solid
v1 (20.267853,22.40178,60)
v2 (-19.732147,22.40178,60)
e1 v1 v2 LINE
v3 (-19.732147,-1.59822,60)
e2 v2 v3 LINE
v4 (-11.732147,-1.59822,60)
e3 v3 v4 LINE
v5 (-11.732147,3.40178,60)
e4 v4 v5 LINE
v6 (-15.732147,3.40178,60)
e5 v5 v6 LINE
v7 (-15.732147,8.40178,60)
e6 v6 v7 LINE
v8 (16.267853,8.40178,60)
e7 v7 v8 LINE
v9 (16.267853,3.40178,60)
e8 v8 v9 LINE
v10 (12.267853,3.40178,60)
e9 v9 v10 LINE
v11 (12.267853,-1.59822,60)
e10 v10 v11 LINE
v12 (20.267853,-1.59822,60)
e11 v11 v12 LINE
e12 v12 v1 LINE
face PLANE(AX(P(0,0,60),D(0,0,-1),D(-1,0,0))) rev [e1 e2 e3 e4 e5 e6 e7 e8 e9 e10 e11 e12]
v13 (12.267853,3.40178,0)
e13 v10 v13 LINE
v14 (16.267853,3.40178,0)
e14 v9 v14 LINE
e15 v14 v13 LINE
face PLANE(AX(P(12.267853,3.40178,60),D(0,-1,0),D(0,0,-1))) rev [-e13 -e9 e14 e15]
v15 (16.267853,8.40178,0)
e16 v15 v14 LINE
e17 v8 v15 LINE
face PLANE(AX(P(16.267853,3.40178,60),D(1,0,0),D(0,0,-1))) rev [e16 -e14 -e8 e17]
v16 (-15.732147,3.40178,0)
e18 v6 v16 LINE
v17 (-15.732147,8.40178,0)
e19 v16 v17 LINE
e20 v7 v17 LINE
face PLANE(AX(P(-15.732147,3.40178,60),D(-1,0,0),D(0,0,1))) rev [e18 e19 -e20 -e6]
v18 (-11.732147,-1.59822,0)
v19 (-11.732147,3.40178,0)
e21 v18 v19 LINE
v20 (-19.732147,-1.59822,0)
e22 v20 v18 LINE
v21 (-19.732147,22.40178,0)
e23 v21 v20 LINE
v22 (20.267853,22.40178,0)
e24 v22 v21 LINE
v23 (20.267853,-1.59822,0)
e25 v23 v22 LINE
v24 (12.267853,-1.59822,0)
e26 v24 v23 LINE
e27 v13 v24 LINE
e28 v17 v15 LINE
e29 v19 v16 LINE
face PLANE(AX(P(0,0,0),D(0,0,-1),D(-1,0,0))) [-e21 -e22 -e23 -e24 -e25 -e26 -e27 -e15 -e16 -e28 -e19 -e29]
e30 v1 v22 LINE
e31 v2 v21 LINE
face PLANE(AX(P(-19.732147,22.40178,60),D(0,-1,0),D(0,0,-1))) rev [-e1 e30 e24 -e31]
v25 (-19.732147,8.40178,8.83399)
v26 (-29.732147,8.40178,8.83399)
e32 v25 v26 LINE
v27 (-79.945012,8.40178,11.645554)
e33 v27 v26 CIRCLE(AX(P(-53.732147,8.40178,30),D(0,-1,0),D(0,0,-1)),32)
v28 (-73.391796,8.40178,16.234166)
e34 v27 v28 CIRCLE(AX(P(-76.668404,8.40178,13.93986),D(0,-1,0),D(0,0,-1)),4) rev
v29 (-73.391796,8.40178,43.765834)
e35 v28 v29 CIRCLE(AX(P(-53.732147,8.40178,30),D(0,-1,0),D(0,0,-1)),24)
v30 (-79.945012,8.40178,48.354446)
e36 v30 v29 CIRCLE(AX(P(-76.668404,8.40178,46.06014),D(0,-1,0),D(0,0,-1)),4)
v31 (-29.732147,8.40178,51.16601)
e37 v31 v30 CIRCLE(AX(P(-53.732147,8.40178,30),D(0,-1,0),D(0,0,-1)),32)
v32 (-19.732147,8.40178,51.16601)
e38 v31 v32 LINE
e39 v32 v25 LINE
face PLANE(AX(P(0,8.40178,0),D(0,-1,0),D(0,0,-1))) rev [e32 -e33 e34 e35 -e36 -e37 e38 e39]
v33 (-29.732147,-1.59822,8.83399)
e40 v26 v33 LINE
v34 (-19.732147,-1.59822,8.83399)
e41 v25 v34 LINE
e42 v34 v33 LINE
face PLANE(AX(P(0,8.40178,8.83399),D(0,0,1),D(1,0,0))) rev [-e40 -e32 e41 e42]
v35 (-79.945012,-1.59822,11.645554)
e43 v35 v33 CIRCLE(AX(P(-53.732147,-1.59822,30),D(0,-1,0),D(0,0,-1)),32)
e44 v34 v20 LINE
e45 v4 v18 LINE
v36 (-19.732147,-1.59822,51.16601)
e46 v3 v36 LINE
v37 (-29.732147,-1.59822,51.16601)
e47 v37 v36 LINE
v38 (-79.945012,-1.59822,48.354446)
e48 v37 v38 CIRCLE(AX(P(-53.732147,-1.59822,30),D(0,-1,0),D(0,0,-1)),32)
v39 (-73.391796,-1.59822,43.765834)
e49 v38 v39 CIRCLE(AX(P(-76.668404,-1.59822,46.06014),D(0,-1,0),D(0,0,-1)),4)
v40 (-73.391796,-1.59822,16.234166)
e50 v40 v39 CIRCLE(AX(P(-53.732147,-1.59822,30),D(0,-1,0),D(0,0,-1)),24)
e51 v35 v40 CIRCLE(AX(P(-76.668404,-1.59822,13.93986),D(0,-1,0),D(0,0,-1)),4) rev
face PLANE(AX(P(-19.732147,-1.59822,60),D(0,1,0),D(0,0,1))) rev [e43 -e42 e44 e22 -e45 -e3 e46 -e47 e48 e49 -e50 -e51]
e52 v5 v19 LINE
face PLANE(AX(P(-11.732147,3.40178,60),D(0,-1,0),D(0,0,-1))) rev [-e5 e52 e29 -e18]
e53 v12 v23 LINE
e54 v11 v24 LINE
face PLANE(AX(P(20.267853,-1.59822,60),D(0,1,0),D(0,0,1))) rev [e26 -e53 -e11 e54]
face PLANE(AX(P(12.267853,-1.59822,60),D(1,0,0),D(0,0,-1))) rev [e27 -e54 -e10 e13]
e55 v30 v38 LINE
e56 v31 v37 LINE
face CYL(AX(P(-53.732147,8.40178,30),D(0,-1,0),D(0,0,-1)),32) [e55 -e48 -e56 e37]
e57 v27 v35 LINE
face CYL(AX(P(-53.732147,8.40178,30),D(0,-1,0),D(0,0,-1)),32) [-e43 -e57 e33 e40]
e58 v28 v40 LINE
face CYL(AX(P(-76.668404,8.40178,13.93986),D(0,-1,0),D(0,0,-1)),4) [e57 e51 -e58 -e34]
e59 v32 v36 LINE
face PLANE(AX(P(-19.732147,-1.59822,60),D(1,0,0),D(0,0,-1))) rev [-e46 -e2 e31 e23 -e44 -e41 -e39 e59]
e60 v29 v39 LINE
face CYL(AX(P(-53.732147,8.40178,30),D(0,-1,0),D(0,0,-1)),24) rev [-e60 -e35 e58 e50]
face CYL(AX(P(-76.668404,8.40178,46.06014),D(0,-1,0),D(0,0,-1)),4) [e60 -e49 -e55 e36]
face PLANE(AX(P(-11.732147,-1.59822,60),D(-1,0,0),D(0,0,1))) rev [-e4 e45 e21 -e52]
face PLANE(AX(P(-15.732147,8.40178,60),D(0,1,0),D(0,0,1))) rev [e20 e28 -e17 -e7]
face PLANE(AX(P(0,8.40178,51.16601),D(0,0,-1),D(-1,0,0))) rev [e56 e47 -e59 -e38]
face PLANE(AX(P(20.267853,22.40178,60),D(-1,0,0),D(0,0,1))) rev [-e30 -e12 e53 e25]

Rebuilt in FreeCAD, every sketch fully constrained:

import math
import FreeCAD as App
import Part
import Sketcher

V = App.Vector
Q = App.Units.Quantity

doc = App.newDocument("Part")
body = doc.addObject("PartDesign::Body", "Body")

sketch1 = doc.addObject("Sketcher::SketchObject", "Sketch")
body.addObject(sketch1)
sketch1.AttachmentSupport = (doc.XY_Plane, [""])
sketch1.MapMode = "FlatFace"
sketch1.addGeometry(Part.LineSegment(V(-19.7, -1.6, 0), V(-11.7, -1.6, 0)), False)
sketch1.addGeometry(Part.LineSegment(V(-11.7, -1.6, 0), V(-11.7, 3.4, 0)), False)
sketch1.addGeometry(Part.LineSegment(V(-11.7, 3.4, 0), V(-15.7, 3.4, 0)), False)
sketch1.addGeometry(Part.LineSegment(V(-15.7, 3.4, 0), V(-15.7, 8.4, 0)), False)
sketch1.addGeometry(Part.LineSegment(V(-15.7, 8.4, 0), V(16.3, 8.4, 0)), False)
sketch1.addGeometry(Part.LineSegment(V(16.3, 8.4, 0), V(16.3, 3.4, 0)), False)
sketch1.addGeometry(Part.LineSegment(V(16.3, 3.4, 0), V(12.3, 3.4, 0)), False)
sketch1.addGeometry(Part.LineSegment(V(12.3, 3.4, 0), V(12.3, -1.6, 0)), False)
sketch1.addGeometry(Part.LineSegment(V(12.3, -1.6, 0), V(20.3, -1.6, 0)), False)
sketch1.addGeometry(Part.LineSegment(V(20.3, -1.6, 0), V(20.3, 22.4, 0)), False)
sketch1.addGeometry(Part.LineSegment(V(20.3, 22.4, 0), V(-19.7, 22.4, 0)), False)
sketch1.addGeometry(Part.LineSegment(V(-19.7, 22.4, 0), V(-19.7, -1.6, 0)), False)
sketch1.addConstraint(Sketcher.Constraint("Coincident", 0, 2, 1, 1))
sketch1.addConstraint(Sketcher.Constraint("Coincident", 1, 2, 2, 1))
sketch1.addConstraint(Sketcher.Constraint("Coincident", 2, 2, 3, 1))
sketch1.addConstraint(Sketcher.Constraint("Coincident", 3, 2, 4, 1))
sketch1.addConstraint(Sketcher.Constraint("Coincident", 4, 2, 5, 1))
sketch1.addConstraint(Sketcher.Constraint("Coincident", 5, 2, 6, 1))
sketch1.addConstraint(Sketcher.Constraint("Coincident", 6, 2, 7, 1))
sketch1.addConstraint(Sketcher.Constraint("Coincident", 7, 2, 8, 1))
sketch1.addConstraint(Sketcher.Constraint("Coincident", 8, 2, 9, 1))
sketch1.addConstraint(Sketcher.Constraint("Coincident", 9, 2, 10, 1))
sketch1.addConstraint(Sketcher.Constraint("Coincident", 10, 2, 11, 1))
sketch1.addConstraint(Sketcher.Constraint("Coincident", 11, 2, 0, 1))
sketch1.addConstraint(Sketcher.Constraint("Horizontal", 0))
sketch1.addConstraint(Sketcher.Constraint("Vertical", 1))
sketch1.addConstraint(Sketcher.Constraint("Horizontal", 2))
sketch1.addConstraint(Sketcher.Constraint("Vertical", 3))
sketch1.addConstraint(Sketcher.Constraint("Horizontal", 4))
sketch1.addConstraint(Sketcher.Constraint("Vertical", 5))
sketch1.addConstraint(Sketcher.Constraint("Horizontal", 6))
sketch1.addConstraint(Sketcher.Constraint("Vertical", 7))
sketch1.addConstraint(Sketcher.Constraint("Horizontal", 8))
sketch1.addConstraint(Sketcher.Constraint("Vertical", 9))
sketch1.addConstraint(Sketcher.Constraint("Horizontal", 10))
sketch1.addConstraint(Sketcher.Constraint("Vertical", 11))
sketch1.addConstraint(Sketcher.Constraint("Horizontal", 2, 2, 5, 2))
sketch1.addConstraint(Sketcher.Constraint("Horizontal", 0, 2, 7, 2))
sketch1.addConstraint(Sketcher.Constraint("Equal", 2, 6))
sketch1.addConstraint(Sketcher.Constraint("Equal", 0, 8))
sketch1.addConstraint(Sketcher.Constraint("Equal", 1, 3))
sketch1.addConstraint(Sketcher.Constraint("DistanceX", 0, 1, 0, 2, Q("8 mm")))
sketch1.addConstraint(Sketcher.Constraint("DistanceX", 2, 2, 2, 1, Q("4 mm")))
sketch1.addConstraint(Sketcher.Constraint("DistanceX", 4, 1, 4, 2, Q("32 mm")))
sketch1.addConstraint(Sketcher.Constraint("DistanceY", 1, 1, 1, 2, Q("5 mm")))
sketch1.addConstraint(Sketcher.Constraint("DistanceY", 9, 1, 9, 2, Q("24 mm")))
sketch1.addConstraint(Sketcher.Constraint("DistanceY", 0, 2, -1, 1, Q("1.59822 mm")))
sketch1.addConstraint(Sketcher.Constraint("DistanceX", 0, 2, -1, 1, Q("11.732147 mm")))
pad1 = doc.addObject("PartDesign::Pad", "Pad")
body.addObject(pad1)
pad1.Profile = sketch1
pad1.Length = 60

sketch2 = doc.addObject("Sketcher::SketchObject", "Sketch001")
body.addObject(sketch2)
sketch2.AttachmentSupport = (doc.XZ_Plane, [""])
sketch2.MapMode = "FlatFace"
sketch2.AttachmentOffset = App.Placement(V(0, 0, 1.59822), App.Rotation())
sketch2.addGeometry(Part.LineSegment(V(-19.7, 51.2, 0), V(-29.7, 51.2, 0)), False)
sketch2.addGeometry(Part.ArcOfCircle(Part.Circle(V(-53.7, 30, 0), V(0, 0, 1), 32), math.radians(41), math.radians(145)), False)
sketch2.addGeometry(Part.ArcOfCircle(Part.Circle(V(-76.7, 46.1, 0), V(0, 0, 1), 4), math.radians(145), math.radians(325)), False)
sketch2.addGeometry(Part.ArcOfCircle(Part.Circle(V(-53.7, 30, 0), V(0, 0, 1), 24), math.radians(-145), math.radians(145)), False)
sketch2.addGeometry(Part.ArcOfCircle(Part.Circle(V(-76.7, 13.9, 0), V(0, 0, 1), 4), math.radians(35), math.radians(215)), False)
sketch2.addGeometry(Part.ArcOfCircle(Part.Circle(V(-53.7, 30, 0), V(0, 0, 1), 32), math.radians(-145), math.radians(-41)), False)
sketch2.addGeometry(Part.LineSegment(V(-29.7, 8.8, 0), V(-19.7, 8.8, 0)), False)
sketch2.addGeometry(Part.LineSegment(V(-19.7, 8.8, 0), V(-19.7, 51.2, 0)), False)
sketch2.addConstraint(Sketcher.Constraint("Coincident", 0, 2, 1, 1))
sketch2.addConstraint(Sketcher.Constraint("Tangent", 1, 2, 2, 1))
sketch2.addConstraint(Sketcher.Constraint("Tangent", 2, 2, 3, 2))
sketch2.addConstraint(Sketcher.Constraint("Tangent", 3, 1, 4, 1))
sketch2.addConstraint(Sketcher.Constraint("Tangent", 4, 2, 5, 1))
sketch2.addConstraint(Sketcher.Constraint("Coincident", 5, 2, 6, 1))
sketch2.addConstraint(Sketcher.Constraint("Coincident", 6, 2, 7, 1))
sketch2.addConstraint(Sketcher.Constraint("Coincident", 7, 2, 0, 1))
sketch2.addConstraint(Sketcher.Constraint("Horizontal", 0))
sketch2.addConstraint(Sketcher.Constraint("Horizontal", 6))
sketch2.addConstraint(Sketcher.Constraint("Vertical", 7))
sketch2.addConstraint(Sketcher.Constraint("Coincident", 3, 3, 1, 3))
sketch2.addConstraint(Sketcher.Constraint("Coincident", 5, 3, 1, 3))
sketch2.addConstraint(Sketcher.Constraint("Equal", 2, 4))
sketch2.addConstraint(Sketcher.Constraint("Vertical", 2, 3, 4, 3))
sketch2.addConstraint(Sketcher.Constraint("Vertical", 0, 2, 5, 2))
sketch2.addConstraint(Sketcher.Constraint("Radius", 1, Q("32 mm")))
sketch2.addConstraint(Sketcher.Constraint("Radius", 2, Q("4 mm")))
sketch2.addConstraint(Sketcher.Constraint("DistanceX", 0, 2, 0, 1, Q("10 mm")))
sketch2.addConstraint(Sketcher.Constraint("DistanceY", -1, 1, 1, 3, Q("30 mm")))
sketch2.addConstraint(Sketcher.Constraint("DistanceX", 5, 3, 0, 2, Q("24 mm")))
sketch2.addConstraint(Sketcher.Constraint("DistanceY", -1, 1, 2, 3, Q("46.06014 mm")))
sketch2.addConstraint(Sketcher.Constraint("DistanceX", 1, 3, -1, 1, Q("53.732147 mm")))
pad2 = doc.addObject("PartDesign::Pad", "Pad001")
body.addObject(pad2)
pad2.Profile = sketch2
pad2.Length = 10
pad2.Reversed = True

doc.recompute()
